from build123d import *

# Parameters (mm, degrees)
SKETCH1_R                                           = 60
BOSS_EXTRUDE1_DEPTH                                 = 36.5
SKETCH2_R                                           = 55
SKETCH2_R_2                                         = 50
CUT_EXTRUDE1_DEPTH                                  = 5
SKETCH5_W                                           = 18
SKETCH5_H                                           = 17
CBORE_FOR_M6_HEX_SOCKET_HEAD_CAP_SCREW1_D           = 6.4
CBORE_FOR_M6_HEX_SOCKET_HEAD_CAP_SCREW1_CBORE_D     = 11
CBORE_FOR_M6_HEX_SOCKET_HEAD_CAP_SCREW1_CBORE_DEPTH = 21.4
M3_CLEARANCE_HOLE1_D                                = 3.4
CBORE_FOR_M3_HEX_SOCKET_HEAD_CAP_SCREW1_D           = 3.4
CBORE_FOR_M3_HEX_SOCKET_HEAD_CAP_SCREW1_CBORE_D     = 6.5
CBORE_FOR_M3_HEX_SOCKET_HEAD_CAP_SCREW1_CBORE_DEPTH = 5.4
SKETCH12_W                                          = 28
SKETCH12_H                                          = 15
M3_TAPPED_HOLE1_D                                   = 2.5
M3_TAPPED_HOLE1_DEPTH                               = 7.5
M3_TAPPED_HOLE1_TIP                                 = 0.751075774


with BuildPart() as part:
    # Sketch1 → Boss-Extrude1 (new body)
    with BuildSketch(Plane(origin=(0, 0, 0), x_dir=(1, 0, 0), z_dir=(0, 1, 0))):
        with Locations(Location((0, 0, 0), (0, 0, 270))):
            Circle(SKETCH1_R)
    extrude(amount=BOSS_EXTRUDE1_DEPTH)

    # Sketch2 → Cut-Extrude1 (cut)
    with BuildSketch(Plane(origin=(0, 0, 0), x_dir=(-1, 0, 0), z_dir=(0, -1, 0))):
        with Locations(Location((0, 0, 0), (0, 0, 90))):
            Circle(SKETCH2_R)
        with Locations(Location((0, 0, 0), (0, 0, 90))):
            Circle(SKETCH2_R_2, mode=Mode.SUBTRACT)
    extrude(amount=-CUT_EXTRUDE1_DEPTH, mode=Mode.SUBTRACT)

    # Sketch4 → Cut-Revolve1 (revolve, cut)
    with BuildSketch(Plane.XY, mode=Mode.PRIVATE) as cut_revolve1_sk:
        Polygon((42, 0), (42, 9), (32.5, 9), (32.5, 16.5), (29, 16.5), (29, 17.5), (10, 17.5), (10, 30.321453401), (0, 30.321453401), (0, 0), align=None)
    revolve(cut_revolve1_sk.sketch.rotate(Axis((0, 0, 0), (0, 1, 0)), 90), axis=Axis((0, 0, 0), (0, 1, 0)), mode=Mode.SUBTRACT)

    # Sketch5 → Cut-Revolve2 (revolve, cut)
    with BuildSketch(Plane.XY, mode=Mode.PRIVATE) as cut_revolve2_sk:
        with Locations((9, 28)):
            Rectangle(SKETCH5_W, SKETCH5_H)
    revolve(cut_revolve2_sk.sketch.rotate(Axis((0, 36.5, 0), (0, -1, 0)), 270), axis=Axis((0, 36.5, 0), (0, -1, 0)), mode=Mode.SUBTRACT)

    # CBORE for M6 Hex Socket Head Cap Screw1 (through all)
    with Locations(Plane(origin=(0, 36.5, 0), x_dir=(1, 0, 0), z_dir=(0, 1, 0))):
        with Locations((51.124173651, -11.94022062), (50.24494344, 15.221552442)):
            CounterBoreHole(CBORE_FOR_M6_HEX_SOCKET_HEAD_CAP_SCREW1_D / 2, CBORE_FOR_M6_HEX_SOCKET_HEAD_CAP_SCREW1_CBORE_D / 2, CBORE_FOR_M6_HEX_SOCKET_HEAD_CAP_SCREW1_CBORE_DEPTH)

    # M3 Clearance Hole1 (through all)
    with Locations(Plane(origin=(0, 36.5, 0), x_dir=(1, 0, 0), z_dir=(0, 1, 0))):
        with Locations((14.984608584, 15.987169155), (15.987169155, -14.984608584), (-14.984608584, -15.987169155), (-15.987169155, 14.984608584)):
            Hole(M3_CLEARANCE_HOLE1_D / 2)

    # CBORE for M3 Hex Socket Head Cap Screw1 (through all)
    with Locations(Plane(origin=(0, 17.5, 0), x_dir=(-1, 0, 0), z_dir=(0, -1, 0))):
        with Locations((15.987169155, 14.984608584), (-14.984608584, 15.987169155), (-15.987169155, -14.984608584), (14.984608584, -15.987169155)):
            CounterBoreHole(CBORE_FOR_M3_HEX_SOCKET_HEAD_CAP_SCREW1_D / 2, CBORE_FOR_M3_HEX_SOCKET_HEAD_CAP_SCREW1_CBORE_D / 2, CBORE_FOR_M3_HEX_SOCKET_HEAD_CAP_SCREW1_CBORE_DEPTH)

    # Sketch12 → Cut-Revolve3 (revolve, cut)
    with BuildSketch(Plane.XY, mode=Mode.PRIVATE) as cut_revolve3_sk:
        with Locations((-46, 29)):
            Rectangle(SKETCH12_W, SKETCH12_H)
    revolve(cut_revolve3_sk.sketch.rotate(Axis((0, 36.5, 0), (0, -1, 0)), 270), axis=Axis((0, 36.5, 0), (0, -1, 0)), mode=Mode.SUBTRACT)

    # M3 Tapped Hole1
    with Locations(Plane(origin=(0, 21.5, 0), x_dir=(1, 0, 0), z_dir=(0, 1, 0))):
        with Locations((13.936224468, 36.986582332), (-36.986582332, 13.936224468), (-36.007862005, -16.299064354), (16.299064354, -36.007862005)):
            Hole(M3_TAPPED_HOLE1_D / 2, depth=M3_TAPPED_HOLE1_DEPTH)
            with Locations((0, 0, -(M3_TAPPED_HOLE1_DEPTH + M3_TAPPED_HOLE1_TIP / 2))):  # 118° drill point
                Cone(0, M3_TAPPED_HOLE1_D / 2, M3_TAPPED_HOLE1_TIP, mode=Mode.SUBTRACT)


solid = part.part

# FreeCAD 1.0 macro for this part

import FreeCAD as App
import Part
import Sketcher
from FreeCAD import Vector
Q = App.Units.Quantity

doc = App.newDocument("Part")
body = doc.addObject("PartDesign::Body", "Body")

# Sketch on XZ plane
sketch1 = body.newObject("Sketcher::SketchObject", "Sketch")
sketch1.AttachmentSupport = (doc.getObject("XZ_Plane"), [""])
sketch1.MapMode = "FlatFace"
sketch1.addGeometry(Part.Circle(Vector(0, 0, 0), Vector(0, 0, 1), 60), False)
sketch1.addConstraint([
    Sketcher.Constraint("Coincident", 0, 3, -1, 1),
    Sketcher.Constraint("Diameter", 0, Q("120 mm")),
])
pad1 = body.newObject("PartDesign::Pad", "Pad")
pad1.Profile = sketch1
pad1.Length = 36.5
pad1.Reversed = True

# Sketch on XZ plane
sketch2 = body.newObject("Sketcher::SketchObject", "Sketch001")
sketch2.AttachmentSupport = (doc.getObject("XZ_Plane"), [""])
sketch2.MapMode = "FlatFace"
sketch2.addGeometry([
    Part.Circle(Vector(0, 0, 0), Vector(0, 0, 1), 55),
    Part.Circle(Vector(0, 0, 0), Vector(0, 0, 1), 50),
], False)
sketch2.addConstraint([
    Sketcher.Constraint("Coincident", 0, 3, -1, 1),
    Sketcher.Constraint("Coincident", 1, 3, -1, 1),
    Sketcher.Constraint("Diameter", 0, Q("110 mm")),
    Sketcher.Constraint("Diameter", 1, Q("100 mm")),
])
pocket1 = body.newObject("PartDesign::Pocket", "Pocket")
pocket1.Profile = sketch2
pocket1.Length = 5

# Sketch on XY plane
sketch3 = body.newObject("Sketcher::SketchObject", "Sketch002")
sketch3.AttachmentSupport = (doc.getObject("XY_Plane"), [""])
sketch3.MapMode = "FlatFace"
sketch3.addGeometry([
    Part.LineSegment(Vector(42, 0, 0), Vector(42, 9, 0)),  # 0
    Part.LineSegment(Vector(42, 9, 0), Vector(32.5, 9, 0)),  # 1
    Part.LineSegment(Vector(32.5, 9, 0), Vector(32.5, 16.5, 0)),  # 2
    Part.LineSegment(Vector(32.5, 16.5, 0), Vector(29, 16.5, 0)),  # 3
    Part.LineSegment(Vector(29, 16.5, 0), Vector(29, 17.5, 0)),  # 4
    Part.LineSegment(Vector(29, 17.5, 0), Vector(10, 17.5, 0)),  # 5
    Part.LineSegment(Vector(10, 17.5, 0), Vector(10, 30.321453, 0)),  # 6
    Part.LineSegment(Vector(10, 30.321453, 0), Vector(0, 30.321453, 0)),  # 7
    Part.LineSegment(Vector(0, 30.321453, 0), Vector(0, 0, 0)),  # 8
    Part.LineSegment(Vector(0, 0, 0), Vector(42, 0, 0)),  # 9
], False)
sketch3.addConstraint([
    Sketcher.Constraint("Coincident", 0, 2, 1, 1),
    Sketcher.Constraint("Coincident", 1, 2, 2, 1),
    Sketcher.Constraint("Coincident", 2, 2, 3, 1),
    Sketcher.Constraint("Coincident", 3, 2, 4, 1),
    Sketcher.Constraint("Coincident", 4, 2, 5, 1),
    Sketcher.Constraint("Coincident", 5, 2, 6, 1),
    Sketcher.Constraint("Coincident", 6, 2, 7, 1),
    Sketcher.Constraint("Coincident", 7, 2, 8, 1),
    Sketcher.Constraint("Coincident", 8, 2, 9, 1),
    Sketcher.Constraint("Coincident", 9, 2, 0, 1),
    Sketcher.Constraint("Vertical", 0),
    Sketcher.Constraint("Horizontal", 1),
    Sketcher.Constraint("Vertical", 2),
    Sketcher.Constraint("Horizontal", 3),
    Sketcher.Constraint("Vertical", 4),
    Sketcher.Constraint("Horizontal", 5),
    Sketcher.Constraint("Vertical", 6),
    Sketcher.Constraint("Horizontal", 7),
    Sketcher.Constraint("Vertical", 8),
    Sketcher.Constraint("Horizontal", 9),
    Sketcher.Constraint("Coincident", 8, 2, -1, 1),
    Sketcher.Constraint("DistanceX", 5, 2, 5, 1, Q("19 mm")),
    Sketcher.Constraint("DistanceX", 7, 2, 7, 1, Q("10 mm")),
    Sketcher.Constraint("DistanceX", 9, 1, 9, 2, Q("42 mm")),
    Sketcher.Constraint("DistanceY", 0, 1, 0, 2, Q("9 mm")),
    Sketcher.Constraint("DistanceY", 4, 1, 4, 2, Q("1 mm")),
    Sketcher.Constraint("DistanceX", 1, 2, 1, 1, Q("9.5 mm")),
    Sketcher.Constraint("DistanceY", 2, 1, 2, 2, Q("7.5 mm")),
    Sketcher.Constraint("DistanceY", 6, 1, 6, 2, Q("12.821453 mm")),
])
groove = body.newObject("PartDesign::Groove", "Groove")
groove.Profile = sketch3
groove.ReferenceAxis = (sketch3, ["V_Axis"])
groove.Angle = 360

# Sketch on XY plane
sketch4 = body.newObject("Sketcher::SketchObject", "Sketch003")
sketch4.AttachmentSupport = (doc.getObject("XY_Plane"), [""])
sketch4.MapMode = "FlatFace"
sketch4.addGeometry([
    Part.LineSegment(Vector(0, 36.5, 0), Vector(0, 19.5, 0)),
    Part.LineSegment(Vector(0, 19.5, 0), Vector(18, 19.5, 0)),
    Part.LineSegment(Vector(18, 19.5, 0), Vector(18, 36.5, 0)),
    Part.LineSegment(Vector(18, 36.5, 0), Vector(0, 36.5, 0)),
], False)
sketch4.addConstraint([
    Sketcher.Constraint("Coincident", 0, 2, 1, 1),
    Sketcher.Constraint("Coincident", 1, 2, 2, 1),
    Sketcher.Constraint("Coincident", 2, 2, 3, 1),
    Sketcher.Constraint("Coincident", 3, 2, 0, 1),
    Sketcher.Constraint("Vertical", 0),
    Sketcher.Constraint("Horizontal", 1),
    Sketcher.Constraint("Vertical", 2),
    Sketcher.Constraint("Horizontal", 3),
    Sketcher.Constraint("PointOnObject", 0, 2, -2),
    Sketcher.Constraint("DistanceX", 1, 1, 1, 2, Q("18 mm")),
    Sketcher.Constraint("DistanceY", 0, 2, 0, 1, Q("17 mm")),
    Sketcher.Constraint("DistanceY", -1, 1, 0, 2, Q("19.5 mm")),
])
groove2 = body.newObject("PartDesign::Groove", "Groove001")
groove2.Profile = sketch4
groove2.ReferenceAxis = (sketch4, ["V_Axis"])
groove2.Angle = 360

# Sketch on XZ plane
sketch5 = body.newObject("Sketcher::SketchObject", "Sketch004")
sketch5.AttachmentSupport = (doc.getObject("XZ_Plane"), [""])
sketch5.MapMode = "FlatFace"
sketch5.AttachmentOffset = App.Placement(Vector(0, 0, -36.5), App.Rotation())
sketch5.addGeometry([
    Part.Circle(Vector(51.124174, 11.940221, 0), Vector(0, 0, 1), 3.2),
    Part.Circle(Vector(50.244943, -15.221552, 0), Vector(0, 0, 1), 3.2),
], False)
sketch5.addConstraint([
    Sketcher.Constraint("Equal", 0, 1),
    Sketcher.Constraint("Diameter", 0, Q("6.4 mm")),
    Sketcher.Constraint("DistanceY", -1, 1, 0, 3, Q("11.940221 mm")),
    Sketcher.Constraint("DistanceX", 1, 3, 0, 3, Q("0.87923 mm")),
    Sketcher.Constraint("DistanceX", -1, 1, 0, 3, Q("51.124174 mm")),
    Sketcher.Constraint("DistanceY", 1, 3, -1, 1, Q("15.221552 mm")),
])
doc.recompute()
hole = body.newObject("PartDesign::Hole", "Hole")
hole.Profile = sketch5
hole.ThreadType = "None"
hole.Diameter = 6.4
hole.DepthType = "ThroughAll"
hole.HoleCutType = "Counterbore"
hole.HoleCutDiameter = 11
hole.HoleCutDepth = 21.4
hole.Reversed = True

# Sketch on XZ plane
sketch6 = body.newObject("Sketcher::SketchObject", "Sketch005")
sketch6.AttachmentSupport = (doc.getObject("XZ_Plane"), [""])
sketch6.MapMode = "FlatFace"
sketch6.AttachmentOffset = App.Placement(Vector(0, 0, -36.5), App.Rotation())
sketch6.addGeometry([
    Part.Circle(Vector(14.984609, -15.987169, 0), Vector(0, 0, 1), 1.7),
    Part.Circle(Vector(15.987169, 14.984609, 0), Vector(0, 0, 1), 1.7),
    Part.Circle(Vector(-14.984609, 15.987169, 0), Vector(0, 0, 1), 1.7),
    Part.Circle(Vector(-15.987169, -14.984609, 0), Vector(0, 0, 1), 1.7),
], False)
sketch6.addConstraint([
    Sketcher.Constraint("Equal", 0, 1),
    Sketcher.Constraint("Equal", 1, 2),
    Sketcher.Constraint("Equal", 2, 3),
    Sketcher.Constraint("Symmetric", 0, 3, 2, 3, -1, 1),
    Sketcher.Constraint("Symmetric", 1, 3, 3, 3, -1, 1),
    Sketcher.Constraint("Diameter", 0, Q("3.4 mm")),
    Sketcher.Constraint("DistanceX", -1, 1, 0, 3, Q("14.984609 mm")),
    Sketcher.Constraint("DistanceY", 0, 3, -1, 1, Q("15.987169 mm")),
    Sketcher.Constraint("DistanceX", -1, 1, 1, 3, Q("15.987169 mm")),
    Sketcher.Constraint("DistanceY", -1, 1, 1, 3, Q("14.984609 mm")),
])
doc.recompute()
hole2 = body.newObject("PartDesign::Hole", "Hole001")
hole2.Profile = sketch6
hole2.ThreadType = "None"
hole2.Diameter = 3.4
hole2.DepthType = "ThroughAll"
hole2.Reversed = True

# Sketch on XZ plane
sketch7 = body.newObject("Sketcher::SketchObject", "Sketch006")
sketch7.AttachmentSupport = (doc.getObject("XZ_Plane"), [""])
sketch7.MapMode = "FlatFace"
sketch7.AttachmentOffset = App.Placement(Vector(0, 0, -17.5), App.Rotation())
sketch7.addGeometry([
    Part.Circle(Vector(-15.987169, -14.984609, 0), Vector(0, 0, 1), 1.7),
    Part.Circle(Vector(14.984609, -15.987169, 0), Vector(0, 0, 1), 1.7),
    Part.Circle(Vector(15.987169, 14.984609, 0), Vector(0, 0, 1), 1.7),
    Part.Circle(Vector(-14.984609, 15.987169, 0), Vector(0, 0, 1), 1.7),
], False)
sketch7.addConstraint([
    Sketcher.Constraint("Equal", 0, 1),
    Sketcher.Constraint("Equal", 1, 2),
    Sketcher.Constraint("Equal", 2, 3),
    Sketcher.Constraint("Symmetric", 0, 3, 2, 3, -1, 1),
    Sketcher.Constraint("Symmetric", 1, 3, 3, 3, -1, 1),
    Sketcher.Constraint("Diameter", 0, Q("3.4 mm")),
    Sketcher.Constraint("DistanceX", 0, 3, -1, 1, Q("15.987169 mm")),
    Sketcher.Constraint("DistanceY", 0, 3, -1, 1, Q("14.984609 mm")),
    Sketcher.Constraint("DistanceX", -1, 1, 1, 3, Q("14.984609 mm")),
    Sketcher.Constraint("DistanceY", 1, 3, -1, 1, Q("15.987169 mm")),
])
doc.recompute()
hole3 = body.newObject("PartDesign::Hole", "Hole002")
hole3.Profile = sketch7
hole3.ThreadType = "None"
hole3.Diameter = 3.4
hole3.DepthType = "ThroughAll"
hole3.HoleCutType = "Counterbore"
hole3.HoleCutDiameter = 6.5
hole3.HoleCutDepth = 5.4

# Sketch on XY plane
sketch8 = body.newObject("Sketcher::SketchObject", "Sketch007")
sketch8.AttachmentSupport = (doc.getObject("XY_Plane"), [""])
sketch8.MapMode = "FlatFace"
sketch8.addGeometry([
    Part.LineSegment(Vector(-60, 36.5, 0), Vector(-60, 21.5, 0)),
    Part.LineSegment(Vector(-60, 21.5, 0), Vector(-32, 21.5, 0)),
    Part.LineSegment(Vector(-32, 21.5, 0), Vector(-32, 36.5, 0)),
    Part.LineSegment(Vector(-32, 36.5, 0), Vector(-60, 36.5, 0)),
], False)
sketch8.addConstraint([
    Sketcher.Constraint("Coincident", 0, 2, 1, 1),
    Sketcher.Constraint("Coincident", 1, 2, 2, 1),
    Sketcher.Constraint("Coincident", 2, 2, 3, 1),
    Sketcher.Constraint("Coincident", 3, 2, 0, 1),
    Sketcher.Constraint("Vertical", 0),
    Sketcher.Constraint("Horizontal", 1),
    Sketcher.Constraint("Vertical", 2),
    Sketcher.Constraint("Horizontal", 3),
    Sketcher.Constraint("DistanceX", 1, 1, 1, 2, Q("28 mm")),
    Sketcher.Constraint("DistanceY", 0, 2, 0, 1, Q("15 mm")),
    Sketcher.Constraint("DistanceX", 0, 2, -1, 1, Q("60 mm")),
    Sketcher.Constraint("DistanceY", -1, 1, 0, 2, Q("21.5 mm")),
])
groove3 = body.newObject("PartDesign::Groove", "Groove002")
groove3.Profile = sketch8
groove3.ReferenceAxis = (sketch8, ["V_Axis"])
groove3.Angle = 360

# Sketch on XZ plane
sketch9 = body.newObject("Sketcher::SketchObject", "Sketch008")
sketch9.AttachmentSupport = (doc.getObject("XZ_Plane"), [""])
sketch9.MapMode = "FlatFace"
sketch9.AttachmentOffset = App.Placement(Vector(0, 0, -21.5), App.Rotation())
sketch9.addGeometry([
    Part.Circle(Vector(13.936224, -36.986582, 0), Vector(0, 0, 1), 1.25),
    Part.Circle(Vector(-36.986582, -13.936224, 0), Vector(0, 0, 1), 1.25),
    Part.Circle(Vector(-36.007862, 16.299064, 0), Vector(0, 0, 1), 1.25),
    Part.Circle(Vector(16.299064, 36.007862, 0), Vector(0, 0, 1), 1.25),
], False)
sketch9.addConstraint([
    Sketcher.Constraint("Equal", 0, 1),
    Sketcher.Constraint("Equal", 1, 2),
    Sketcher.Constraint("Equal", 2, 3),
    Sketcher.Constraint("Diameter", 0, Q("2.5 mm")),
    Sketcher.Constraint("DistanceX", 1, 3, 2, 3, Q("0.97872 mm")),
    Sketcher.Constraint("DistanceY", 1, 3, 2, 3, Q("30.235289 mm")),
    Sketcher.Constraint("DistanceX", 0, 3, 3, 3, Q("2.36284 mm")),
    Sketcher.Constraint("DistanceX", -1, 1, 0, 3, Q("13.936224 mm")),
    Sketcher.Constraint("DistanceY", 0, 3, -1, 1, Q("36.986582 mm")),
    Sketcher.Constraint("DistanceX", 1, 3, -1, 1, Q("36.986582 mm")),
    Sketcher.Constraint("DistanceY", 1, 3, -1, 1, Q("13.936224 mm")),
    Sketcher.Constraint("DistanceY", -1, 1, 3, 3, Q("36.007862 mm")),
])
doc.recompute()
hole4 = body.newObject("PartDesign::Hole", "Hole003")
hole4.Profile = sketch9
hole4.ThreadType = "None"
hole4.Diameter = 2.5
hole4.DepthType = "Dimension"
hole4.Depth = 7.5
hole4.DrillPoint = "Angled"
hole4.DrillPointAngle = 118
hole4.Reversed = True

doc.recompute()
